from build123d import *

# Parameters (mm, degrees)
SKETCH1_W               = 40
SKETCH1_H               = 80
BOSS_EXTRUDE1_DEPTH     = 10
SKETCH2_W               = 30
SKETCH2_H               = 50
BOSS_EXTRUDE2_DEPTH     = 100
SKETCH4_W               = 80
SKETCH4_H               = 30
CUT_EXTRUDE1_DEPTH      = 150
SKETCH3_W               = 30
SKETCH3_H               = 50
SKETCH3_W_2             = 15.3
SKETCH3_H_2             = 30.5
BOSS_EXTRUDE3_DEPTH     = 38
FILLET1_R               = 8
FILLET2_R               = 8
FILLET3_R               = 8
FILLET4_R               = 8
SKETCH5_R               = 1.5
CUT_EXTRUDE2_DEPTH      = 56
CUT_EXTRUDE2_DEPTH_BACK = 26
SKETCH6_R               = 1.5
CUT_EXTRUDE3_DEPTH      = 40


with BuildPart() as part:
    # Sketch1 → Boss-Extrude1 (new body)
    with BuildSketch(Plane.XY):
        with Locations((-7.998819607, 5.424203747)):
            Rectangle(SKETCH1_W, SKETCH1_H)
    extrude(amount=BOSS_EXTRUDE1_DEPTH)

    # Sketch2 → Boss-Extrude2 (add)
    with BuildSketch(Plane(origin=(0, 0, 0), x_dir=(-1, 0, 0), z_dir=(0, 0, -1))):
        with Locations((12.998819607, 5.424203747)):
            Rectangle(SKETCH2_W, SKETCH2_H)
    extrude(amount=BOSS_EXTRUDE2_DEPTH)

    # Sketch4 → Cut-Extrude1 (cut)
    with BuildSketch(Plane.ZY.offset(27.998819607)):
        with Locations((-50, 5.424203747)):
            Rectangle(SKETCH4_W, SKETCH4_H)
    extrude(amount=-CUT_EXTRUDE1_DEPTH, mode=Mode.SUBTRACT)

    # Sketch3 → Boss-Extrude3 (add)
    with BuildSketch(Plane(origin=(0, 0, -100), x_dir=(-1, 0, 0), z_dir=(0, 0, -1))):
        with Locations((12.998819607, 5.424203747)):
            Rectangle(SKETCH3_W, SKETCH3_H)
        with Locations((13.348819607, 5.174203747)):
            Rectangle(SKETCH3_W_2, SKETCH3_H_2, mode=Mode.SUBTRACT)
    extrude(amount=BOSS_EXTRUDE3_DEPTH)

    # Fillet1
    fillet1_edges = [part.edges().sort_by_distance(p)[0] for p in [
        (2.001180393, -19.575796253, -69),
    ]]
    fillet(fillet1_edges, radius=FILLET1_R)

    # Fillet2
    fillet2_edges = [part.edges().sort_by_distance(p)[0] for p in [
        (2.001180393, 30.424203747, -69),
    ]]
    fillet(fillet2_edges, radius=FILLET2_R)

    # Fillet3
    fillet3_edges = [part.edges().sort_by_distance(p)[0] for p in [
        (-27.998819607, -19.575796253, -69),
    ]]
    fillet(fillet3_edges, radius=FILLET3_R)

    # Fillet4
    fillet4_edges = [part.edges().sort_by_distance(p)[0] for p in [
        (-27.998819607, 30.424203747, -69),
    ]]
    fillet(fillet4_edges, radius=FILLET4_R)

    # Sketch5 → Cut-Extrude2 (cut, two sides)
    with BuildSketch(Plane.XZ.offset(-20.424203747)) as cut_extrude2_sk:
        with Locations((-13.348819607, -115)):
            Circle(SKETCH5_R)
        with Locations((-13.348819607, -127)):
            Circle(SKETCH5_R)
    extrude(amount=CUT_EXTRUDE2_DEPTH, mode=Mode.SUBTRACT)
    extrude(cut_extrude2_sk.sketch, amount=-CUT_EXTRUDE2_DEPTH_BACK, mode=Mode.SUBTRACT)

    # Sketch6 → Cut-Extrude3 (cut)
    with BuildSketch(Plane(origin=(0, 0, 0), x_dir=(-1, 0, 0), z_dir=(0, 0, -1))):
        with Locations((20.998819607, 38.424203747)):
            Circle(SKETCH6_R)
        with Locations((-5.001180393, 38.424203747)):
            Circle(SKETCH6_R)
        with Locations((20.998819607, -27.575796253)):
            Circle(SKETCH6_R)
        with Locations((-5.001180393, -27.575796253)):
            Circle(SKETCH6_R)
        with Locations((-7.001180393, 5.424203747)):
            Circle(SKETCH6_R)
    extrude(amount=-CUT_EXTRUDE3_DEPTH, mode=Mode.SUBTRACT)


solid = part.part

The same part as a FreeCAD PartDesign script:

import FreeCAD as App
import Part
import Sketcher

V = App.Vector


def edges_at(feature, points):
    """Names of the edges that pass closest to the given points."""
    edges = feature.Shape.Edges
    near = lambda p: min(range(len(edges)), key=lambda i: edges[i].distToShape(Part.Vertex(*p))[0])
    return sorted({f"Edge{near(p) + 1}" for p in points})


def add_polygon(sketch, points):
    """Adds a closed chain of lines whose ends are joined by coincident constraints."""
    first, n = sketch.GeometryCount, len(points)
    for a, b in zip(points, points[1:] + points[:1]):
        sketch.addGeometry(Part.LineSegment(App.Vector(*a, 0), App.Vector(*b, 0)), False)
    for i in range(n):
        sketch.addConstraint(Sketcher.Constraint("Coincident", first + i, 2, first + (i + 1) % n, 1))

doc = App.newDocument("Part")
params = doc.addObject("Spreadsheet::Sheet", "Params")
for row, (alias, value) in enumerate([
    ("sketch1_width", "40 mm"),
    ("sketch1_height", "80 mm"),
    ("pad1_length", "10 mm"),
    ("sketch2_width", "30 mm"),
    ("sketch2_height", "50 mm"),
    ("pad2_length", "100 mm"),
    ("sketch3_width", "30 mm"),
    ("sketch3_height", "80 mm"),
    ("pocket1_length", "150 mm"),
    ("sketch4_width", "30 mm"),
    ("sketch4_height", "50 mm"),
    ("sketch4_width2", "15.3 mm"),
    ("sketch4_height2", "30.5 mm"),
    ("pad3_length", "38 mm"),
    ("fillet_radius", "8 mm"),
    ("fillet2_radius", "8 mm"),
    ("fillet3_radius", "8 mm"),
    ("fillet4_radius", "8 mm"),
    ("sketch5_diameter", "3 mm"),
    ("sketch6_diameter", "3 mm"),
    ("pocket3_length", "40 mm"),
], start=1):
    params.set(f"A{row}", alias)
    params.set(f"B{row}", "=" + value)
    params.setAlias(f"B{row}", alias)

body = doc.addObject("PartDesign::Body", "Body")

sketch1 = doc.addObject("Sketcher::SketchObject", "Sketch")
body.addObject(sketch1)
sketch1.AttachmentSupport = (doc.XY_Plane, [""])
sketch1.MapMode = "FlatFace"
add_polygon(sketch1, [(-28, 45), (-28, -35), (12, -35), (12, 45)])
sketch1.addConstraint(Sketcher.Constraint("Vertical", 0))
sketch1.addConstraint(Sketcher.Constraint("Horizontal", 1))
sketch1.addConstraint(Sketcher.Constraint("Vertical", 2))
sketch1.addConstraint(Sketcher.Constraint("Horizontal", 3))
sketch1.addConstraint(Sketcher.Constraint("DistanceX", 1, 1, 1, 2, 40.0))
sketch1.addConstraint(Sketcher.Constraint("DistanceY", 0, 2, 0, 1, 80.0))
sketch1.addConstraint(Sketcher.Constraint("DistanceX", 0, 2, -1, 1, 27.99882))
sketch1.addConstraint(Sketcher.Constraint("DistanceY", 0, 2, -1, 1, 34.575796))
sketch1.setExpression("Constraints[8]", "Params.sketch1_width")
sketch1.setExpression("Constraints[9]", "Params.sketch1_height")
pad1 = doc.addObject("PartDesign::Pad", "Pad")
body.addObject(pad1)
pad1.Profile = sketch1
pad1.setExpression("Length", "Params.pad1_length")

sketch2 = doc.addObject("Sketcher::SketchObject", "Sketch001")
body.addObject(sketch2)
sketch2.AttachmentSupport = (doc.XY_Plane, [""])
sketch2.MapMode = "FlatFace"
add_polygon(sketch2, [(2, 30), (2, -20), (-28, -20), (-28, 30)])
sketch2.addConstraint(Sketcher.Constraint("Vertical", 0))
sketch2.addConstraint(Sketcher.Constraint("Horizontal", 1))
sketch2.addConstraint(Sketcher.Constraint("Vertical", 2))
sketch2.addConstraint(Sketcher.Constraint("Horizontal", 3))
sketch2.addConstraint(Sketcher.Constraint("DistanceX", 1, 2, 1, 1, 30.0))
sketch2.addConstraint(Sketcher.Constraint("DistanceY", 0, 2, 0, 1, 50.0))
sketch2.addConstraint(Sketcher.Constraint("DistanceX", -1, 1, 0, 2, 2.00118))
sketch2.addConstraint(Sketcher.Constraint("DistanceY", 0, 2, -1, 1, 19.575796))
sketch2.setExpression("Constraints[8]", "Params.sketch2_width")
sketch2.setExpression("Constraints[9]", "Params.sketch2_height")
pad2 = doc.addObject("PartDesign::Pad", "Pad001")
body.addObject(pad2)
pad2.Profile = sketch2
pad2.setExpression("Length", "Params.pad2_length")
pad2.Reversed = True

sketch3 = doc.addObject("Sketcher::SketchObject", "Sketch002")
body.addObject(sketch3)
sketch3.AttachmentSupport = (doc.YZ_Plane, [""])
sketch3.MapMode = "FlatFace"
sketch3.AttachmentOffset = App.Placement(V(0, 0, -27.99882), App.Rotation())
add_polygon(sketch3, [(20, -90), (-10, -90), (-10, -10), (20, -10)])
sketch3.addConstraint(Sketcher.Constraint("Horizontal", 0))
sketch3.addConstraint(Sketcher.Constraint("Vertical", 1))
sketch3.addConstraint(Sketcher.Constraint("Horizontal", 2))
sketch3.addConstraint(Sketcher.Constraint("Vertical", 3))
sketch3.addConstraint(Sketcher.Constraint("DistanceX", 0, 2, 0, 1, 30.0))
sketch3.addConstraint(Sketcher.Constraint("DistanceY", 1, 1, 1, 2, 80.0))
sketch3.addConstraint(Sketcher.Constraint("DistanceY", 0, 2, -1, 1, 90.0))
sketch3.addConstraint(Sketcher.Constraint("DistanceX", 0, 2, -1, 1, 9.575796))
sketch3.setExpression("Constraints[8]", "Params.sketch3_width")
sketch3.setExpression("Constraints[9]", "Params.sketch3_height")
pocket1 = doc.addObject("PartDesign::Pocket", "Pocket")
body.addObject(pocket1)
pocket1.Profile = sketch3
pocket1.setExpression("Length", "Params.pocket1_length")
pocket1.Reversed = True

sketch4 = doc.addObject("Sketcher::SketchObject", "Sketch003")
body.addObject(sketch4)
sketch4.AttachmentSupport = (doc.XY_Plane, [""])
sketch4.MapMode = "FlatFace"
sketch4.AttachmentOffset = App.Placement(V(0, 0, -100), App.Rotation())
add_polygon(sketch4, [(2, 30), (2, -20), (-28, -20), (-28, 30)])
add_polygon(sketch4, [(-21, -10), (-6, -10), (-6, 20), (-21, 20)])
sketch4.addConstraint(Sketcher.Constraint("Vertical", 0))
sketch4.addConstraint(Sketcher.Constraint("Horizontal", 1))
sketch4.addConstraint(Sketcher.Constraint("Vertical", 2))
sketch4.addConstraint(Sketcher.Constraint("Horizontal", 3))
sketch4.addConstraint(Sketcher.Constraint("Horizontal", 4))
sketch4.addConstraint(Sketcher.Constraint("Vertical", 5))
sketch4.addConstraint(Sketcher.Constraint("Horizontal", 6))
sketch4.addConstraint(Sketcher.Constraint("Vertical", 7))
sketch4.addConstraint(Sketcher.Constraint("DistanceX", 1, 2, 1, 1, 30.0))
sketch4.addConstraint(Sketcher.Constraint("DistanceY", 0, 2, 0, 1, 50.0))
sketch4.addConstraint(Sketcher.Constraint("DistanceX", 4, 1, 4, 2, 15.3))
sketch4.addConstraint(Sketcher.Constraint("DistanceY", 5, 1, 5, 2, 30.5))
sketch4.addConstraint(Sketcher.Constraint("DistanceY", 5, 2, 3, 2, 10.0))
sketch4.addConstraint(Sketcher.Constraint("DistanceX", 2, 2, 6, 2, 7.0))
sketch4.addConstraint(Sketcher.Constraint("DistanceX", -1, 1, 0, 2, 2.00118))
sketch4.addConstraint(Sketcher.Constraint("DistanceY", 0, 2, -1, 1, 19.575796))
sketch4.setExpression("Constraints[16]", "Params.sketch4_width")
sketch4.setExpression("Constraints[17]", "Params.sketch4_height")
sketch4.setExpression("Constraints[18]", "Params.sketch4_width2")
sketch4.setExpression("Constraints[19]", "Params.sketch4_height2")
pad3 = doc.addObject("PartDesign::Pad", "Pad002")
body.addObject(pad3)
pad3.Profile = sketch4
pad3.setExpression("Length", "Params.pad3_length")
pad3.Reversed = True
doc.recompute()

fillet = doc.addObject("PartDesign::Fillet", "Fillet")
body.addObject(fillet)
fillet.Base = (pad3, edges_at(pad3, [(2.001, -19.576, -69)]))
fillet.setExpression("Radius", "Params.fillet_radius")
doc.recompute()

fillet2 = doc.addObject("PartDesign::Fillet", "Fillet001")
body.addObject(fillet2)
fillet2.Base = (fillet, edges_at(fillet, [(2.001, 30.424, -69)]))
fillet2.setExpression("Radius", "Params.fillet2_radius")
doc.recompute()

fillet3 = doc.addObject("PartDesign::Fillet", "Fillet002")
body.addObject(fillet3)
fillet3.Base = (fillet2, edges_at(fillet2, [(-27.999, -19.576, -69)]))
fillet3.setExpression("Radius", "Params.fillet3_radius")
doc.recompute()

fillet4 = doc.addObject("PartDesign::Fillet", "Fillet003")
body.addObject(fillet4)
fillet4.Base = (fillet3, edges_at(fillet3, [(-27.999, 30.424, -69)]))
fillet4.setExpression("Radius", "Params.fillet4_radius")

sketch5 = doc.addObject("Sketcher::SketchObject", "Sketch004")
body.addObject(sketch5)
sketch5.AttachmentSupport = (doc.XZ_Plane, [""])
sketch5.MapMode = "FlatFace"
sketch5.AttachmentOffset = App.Placement(V(0, 0, -20.424204), App.Rotation())
sketch5.addGeometry(Part.Circle(V(-13.3, -115, 0), V(0, 0, 1), 1.5), False)
sketch5.addGeometry(Part.Circle(V(-13.3, -127, 0), V(0, 0, 1), 1.5), False)
sketch5.addConstraint(Sketcher.Constraint("Equal", 0, 1))
sketch5.addConstraint(Sketcher.Constraint("Vertical", 0, 3, 1, 3))
sketch5.addConstraint(Sketcher.Constraint("Diameter", 0, 3.0))
sketch5.addConstraint(Sketcher.Constraint("DistanceY", 0, 3, -1, 1, 115.0))
sketch5.addConstraint(Sketcher.Constraint("DistanceY", 1, 3, -1, 1, 127.0))
sketch5.addConstraint(Sketcher.Constraint("DistanceX", 0, 3, -1, 1, 13.34882))
sketch5.setExpression("Constraints[2]", "Params.sketch5_diameter")
pocket2 = doc.addObject("PartDesign::Pocket", "Pocket001")
body.addObject(pocket2)
pocket2.Profile = sketch5
pocket2.Type = "ThroughAll"
pocket2.Midplane = True

sketch6 = doc.addObject("Sketcher::SketchObject", "Sketch005")
body.addObject(sketch6)
sketch6.AttachmentSupport = (doc.XY_Plane, [""])
sketch6.MapMode = "FlatFace"
sketch6.addGeometry(Part.Circle(V(-21, 38.4, 0), V(0, 0, 1), 1.5), False)
sketch6.addGeometry(Part.Circle(V(5, 38.4, 0), V(0, 0, 1), 1.5), False)
sketch6.addGeometry(Part.Circle(V(-21, -27.6, 0), V(0, 0, 1), 1.5), False)
sketch6.addGeometry(Part.Circle(V(5, -27.6, 0), V(0, 0, 1), 1.5), False)
sketch6.addGeometry(Part.Circle(V(7, 5.4, 0), V(0, 0, 1), 1.5), False)
sketch6.addConstraint(Sketcher.Constraint("Equal", 0, 1))
sketch6.addConstraint(Sketcher.Constraint("Equal", 1, 2))
sketch6.addConstraint(Sketcher.Constraint("Equal", 2, 3))
sketch6.addConstraint(Sketcher.Constraint("Equal", 3, 4))
sketch6.addConstraint(Sketcher.Constraint("Horizontal", 0, 3, 1, 3))
sketch6.addConstraint(Sketcher.Constraint("Horizontal", 2, 3, 3, 3))
sketch6.addConstraint(Sketcher.Constraint("Vertical", 0, 3, 2, 3))
sketch6.addConstraint(Sketcher.Constraint("Vertical", 1, 3, 3, 3))
sketch6.addConstraint(Sketcher.Constraint("Diameter", 0, 3.0))
sketch6.addConstraint(Sketcher.Constraint("DistanceX", 0, 3, 1, 3, 26.0))
sketch6.addConstraint(Sketcher.Constraint("DistanceY", 2, 3, 0, 3, 66.0))
sketch6.addConstraint(Sketcher.Constraint("DistanceX", 1, 3, 4, 3, 2.0))
sketch6.addConstraint(Sketcher.Constraint("DistanceY", 4, 3, 1, 3, 33.0))
sketch6.addConstraint(Sketcher.Constraint("DistanceX", 0, 3, -1, 1, 20.99882))
sketch6.addConstraint(Sketcher.Constraint("DistanceY", -1, 1, 0, 3, 38.424204))
sketch6.setExpression("Constraints[8]", "Params.sketch6_diameter")
pocket3 = doc.addObject("PartDesign::Pocket", "Pocket002")
body.addObject(pocket3)
pocket3.Profile = sketch6
pocket3.setExpression("Length", "Params.pocket3_length")
pocket3.Reversed = True

doc.recompute()
